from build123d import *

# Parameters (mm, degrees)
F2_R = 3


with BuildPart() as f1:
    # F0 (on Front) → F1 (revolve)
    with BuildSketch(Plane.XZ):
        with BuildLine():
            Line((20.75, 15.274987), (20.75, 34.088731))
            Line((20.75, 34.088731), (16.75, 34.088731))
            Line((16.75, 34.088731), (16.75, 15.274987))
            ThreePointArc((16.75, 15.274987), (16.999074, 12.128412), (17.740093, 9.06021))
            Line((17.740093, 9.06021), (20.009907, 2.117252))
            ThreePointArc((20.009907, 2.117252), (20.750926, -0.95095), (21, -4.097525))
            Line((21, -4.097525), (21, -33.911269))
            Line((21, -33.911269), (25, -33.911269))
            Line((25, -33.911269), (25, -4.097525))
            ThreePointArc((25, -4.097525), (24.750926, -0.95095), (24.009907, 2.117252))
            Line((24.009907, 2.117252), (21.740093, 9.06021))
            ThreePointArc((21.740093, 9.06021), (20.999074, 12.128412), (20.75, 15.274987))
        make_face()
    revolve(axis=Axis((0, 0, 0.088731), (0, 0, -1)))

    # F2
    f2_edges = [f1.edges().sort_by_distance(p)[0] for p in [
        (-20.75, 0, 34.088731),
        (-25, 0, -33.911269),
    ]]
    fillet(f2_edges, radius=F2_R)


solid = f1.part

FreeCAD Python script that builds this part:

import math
import FreeCAD as App
import Part
import Sketcher

V = App.Vector


def edges_at(feature, points):
    """Names of the edges that pass closest to the given points."""
    edges = feature.Shape.Edges
    near = lambda p: min(range(len(edges)), key=lambda i: edges[i].distToShape(Part.Vertex(*p))[0])
    return sorted({f"Edge{near(p) + 1}" for p in points})

doc = App.newDocument("Part")
body = doc.addObject("PartDesign::Body", "Body")

# Sketch on XZ plane
sketch1 = doc.addObject("Sketcher::SketchObject", "Sketch")
body.addObject(sketch1)
sketch1.AttachmentSupport = (doc.XZ_Plane, [""])
sketch1.MapMode = "FlatFace"
sketch1.addGeometry(Part.LineSegment(V(20.8, 15.3, 0), V(20.8, 34.1, 0)), False)
sketch1.addGeometry(Part.LineSegment(V(20.8, 34.1, 0), V(16.8, 34.1, 0)), False)
sketch1.addGeometry(Part.LineSegment(V(16.8, 34.1, 0), V(16.8, 15.3, 0)), False)
sketch1.addGeometry(Part.ArcOfCircle(Part.Circle(V(36.7, 15.3, 0), V(0, 0, 1), 20), math.radians(180), math.radians(198.1)), False)
sketch1.addGeometry(Part.LineSegment(V(17.7, 9.1, 0), V(20, 2.1, 0)), False)
sketch1.addGeometry(Part.ArcOfCircle(Part.Circle(V(1, -4.1, 0), V(0, 0, 1), 20), math.radians(0), math.radians(18.1)), False)
sketch1.addGeometry(Part.LineSegment(V(21, -4.1, 0), V(21, -33.9, 0)), False)
sketch1.addGeometry(Part.LineSegment(V(21, -33.9, 0), V(25, -33.9, 0)), False)
sketch1.addGeometry(Part.LineSegment(V(25, -33.9, 0), V(25, -4.1, 0)), False)
sketch1.addGeometry(Part.ArcOfCircle(Part.Circle(V(5, -4.1, 0), V(0, 0, 1), 20), math.radians(0), math.radians(18.1)), False)
sketch1.addGeometry(Part.LineSegment(V(24, 2.1, 0), V(21.7, 9.1, 0)), False)
sketch1.addGeometry(Part.ArcOfCircle(Part.Circle(V(40.7, 15.3, 0), V(0, 0, 1), 20), math.radians(180), math.radians(198.1)), False)
sketch1.addConstraint(Sketcher.Constraint("Coincident", 0, 2, 1, 1))
sketch1.addConstraint(Sketcher.Constraint("Coincident", 1, 2, 2, 1))
sketch1.addConstraint(Sketcher.Constraint("Tangent", 2, 2, 3, 1))
sketch1.addConstraint(Sketcher.Constraint("Tangent", 3, 2, 4, 1))
sketch1.addConstraint(Sketcher.Constraint("Tangent", 4, 2, 5, 2))
sketch1.addConstraint(Sketcher.Constraint("Tangent", 5, 1, 6, 1))
sketch1.addConstraint(Sketcher.Constraint("Coincident", 6, 2, 7, 1))
sketch1.addConstraint(Sketcher.Constraint("Coincident", 7, 2, 8, 1))
sketch1.addConstraint(Sketcher.Constraint("Tangent", 8, 2, 9, 1))
sketch1.addConstraint(Sketcher.Constraint("Tangent", 9, 2, 10, 1))
sketch1.addConstraint(Sketcher.Constraint("Tangent", 10, 2, 11, 2))
sketch1.addConstraint(Sketcher.Constraint("Tangent", 11, 1, 0, 1))
sketch1.addConstraint(Sketcher.Constraint("Vertical", 0))
sketch1.addConstraint(Sketcher.Constraint("Horizontal", 1))
sketch1.addConstraint(Sketcher.Constraint("Vertical", 2))
sketch1.addConstraint(Sketcher.Constraint("Vertical", 6))
sketch1.addConstraint(Sketcher.Constraint("Horizontal", 7))
sketch1.addConstraint(Sketcher.Constraint("Vertical", 8))
sketch1.addConstraint(Sketcher.Constraint("Equal", 3, 5))
sketch1.addConstraint(Sketcher.Constraint("Equal", 5, 9))
sketch1.addConstraint(Sketcher.Constraint("Equal", 9, 11))
sketch1.addConstraint(Sketcher.Constraint("Parallel", 4, 10))
sketch1.addConstraint(Sketcher.Constraint("Horizontal", 5, 3, 9, 3))
sketch1.addConstraint(Sketcher.Constraint("Horizontal", 3, 3, 11, 3))
sketch1.addConstraint(Sketcher.Constraint("DistanceX", 1, 2, 1, 1, 4.0))
sketch1.addConstraint(Sketcher.Constraint("DistanceX", -1, 1, 5, 1, 21.0))
sketch1.addConstraint(Sketcher.Constraint("DistanceX", -1, 1, 0, 2, 20.75))
sketch1.addConstraint(Sketcher.Constraint("Radius", 3, 19.999993))
sketch1.addConstraint(Sketcher.Constraint("DistanceX", 3, 2, 3, 3, 19.0099))
sketch1.addConstraint(Sketcher.Constraint("DistanceY", 0, 1, 0, 2, 18.813744))
sketch1.addConstraint(Sketcher.Constraint("DistanceY", 6, 2, 6, 1, 29.813744))
sketch1.addConstraint(Sketcher.Constraint("DistanceY", -1, 1, 0, 2, 34.088731))
revolution = doc.addObject("PartDesign::Revolution", "Revolution")
body.addObject(revolution)
revolution.Profile = sketch1
revolution.ReferenceAxis = (sketch1, ["V_Axis"])
revolution.Angle = 360
doc.recompute()

fillet = doc.addObject("PartDesign::Fillet", "Fillet")
body.addObject(fillet)
fillet.Base = (revolution, edges_at(revolution, [(-20.75, 0, 34.089), (-25, 0, -33.911)]))
fillet.Radius = 3

doc.recompute()
